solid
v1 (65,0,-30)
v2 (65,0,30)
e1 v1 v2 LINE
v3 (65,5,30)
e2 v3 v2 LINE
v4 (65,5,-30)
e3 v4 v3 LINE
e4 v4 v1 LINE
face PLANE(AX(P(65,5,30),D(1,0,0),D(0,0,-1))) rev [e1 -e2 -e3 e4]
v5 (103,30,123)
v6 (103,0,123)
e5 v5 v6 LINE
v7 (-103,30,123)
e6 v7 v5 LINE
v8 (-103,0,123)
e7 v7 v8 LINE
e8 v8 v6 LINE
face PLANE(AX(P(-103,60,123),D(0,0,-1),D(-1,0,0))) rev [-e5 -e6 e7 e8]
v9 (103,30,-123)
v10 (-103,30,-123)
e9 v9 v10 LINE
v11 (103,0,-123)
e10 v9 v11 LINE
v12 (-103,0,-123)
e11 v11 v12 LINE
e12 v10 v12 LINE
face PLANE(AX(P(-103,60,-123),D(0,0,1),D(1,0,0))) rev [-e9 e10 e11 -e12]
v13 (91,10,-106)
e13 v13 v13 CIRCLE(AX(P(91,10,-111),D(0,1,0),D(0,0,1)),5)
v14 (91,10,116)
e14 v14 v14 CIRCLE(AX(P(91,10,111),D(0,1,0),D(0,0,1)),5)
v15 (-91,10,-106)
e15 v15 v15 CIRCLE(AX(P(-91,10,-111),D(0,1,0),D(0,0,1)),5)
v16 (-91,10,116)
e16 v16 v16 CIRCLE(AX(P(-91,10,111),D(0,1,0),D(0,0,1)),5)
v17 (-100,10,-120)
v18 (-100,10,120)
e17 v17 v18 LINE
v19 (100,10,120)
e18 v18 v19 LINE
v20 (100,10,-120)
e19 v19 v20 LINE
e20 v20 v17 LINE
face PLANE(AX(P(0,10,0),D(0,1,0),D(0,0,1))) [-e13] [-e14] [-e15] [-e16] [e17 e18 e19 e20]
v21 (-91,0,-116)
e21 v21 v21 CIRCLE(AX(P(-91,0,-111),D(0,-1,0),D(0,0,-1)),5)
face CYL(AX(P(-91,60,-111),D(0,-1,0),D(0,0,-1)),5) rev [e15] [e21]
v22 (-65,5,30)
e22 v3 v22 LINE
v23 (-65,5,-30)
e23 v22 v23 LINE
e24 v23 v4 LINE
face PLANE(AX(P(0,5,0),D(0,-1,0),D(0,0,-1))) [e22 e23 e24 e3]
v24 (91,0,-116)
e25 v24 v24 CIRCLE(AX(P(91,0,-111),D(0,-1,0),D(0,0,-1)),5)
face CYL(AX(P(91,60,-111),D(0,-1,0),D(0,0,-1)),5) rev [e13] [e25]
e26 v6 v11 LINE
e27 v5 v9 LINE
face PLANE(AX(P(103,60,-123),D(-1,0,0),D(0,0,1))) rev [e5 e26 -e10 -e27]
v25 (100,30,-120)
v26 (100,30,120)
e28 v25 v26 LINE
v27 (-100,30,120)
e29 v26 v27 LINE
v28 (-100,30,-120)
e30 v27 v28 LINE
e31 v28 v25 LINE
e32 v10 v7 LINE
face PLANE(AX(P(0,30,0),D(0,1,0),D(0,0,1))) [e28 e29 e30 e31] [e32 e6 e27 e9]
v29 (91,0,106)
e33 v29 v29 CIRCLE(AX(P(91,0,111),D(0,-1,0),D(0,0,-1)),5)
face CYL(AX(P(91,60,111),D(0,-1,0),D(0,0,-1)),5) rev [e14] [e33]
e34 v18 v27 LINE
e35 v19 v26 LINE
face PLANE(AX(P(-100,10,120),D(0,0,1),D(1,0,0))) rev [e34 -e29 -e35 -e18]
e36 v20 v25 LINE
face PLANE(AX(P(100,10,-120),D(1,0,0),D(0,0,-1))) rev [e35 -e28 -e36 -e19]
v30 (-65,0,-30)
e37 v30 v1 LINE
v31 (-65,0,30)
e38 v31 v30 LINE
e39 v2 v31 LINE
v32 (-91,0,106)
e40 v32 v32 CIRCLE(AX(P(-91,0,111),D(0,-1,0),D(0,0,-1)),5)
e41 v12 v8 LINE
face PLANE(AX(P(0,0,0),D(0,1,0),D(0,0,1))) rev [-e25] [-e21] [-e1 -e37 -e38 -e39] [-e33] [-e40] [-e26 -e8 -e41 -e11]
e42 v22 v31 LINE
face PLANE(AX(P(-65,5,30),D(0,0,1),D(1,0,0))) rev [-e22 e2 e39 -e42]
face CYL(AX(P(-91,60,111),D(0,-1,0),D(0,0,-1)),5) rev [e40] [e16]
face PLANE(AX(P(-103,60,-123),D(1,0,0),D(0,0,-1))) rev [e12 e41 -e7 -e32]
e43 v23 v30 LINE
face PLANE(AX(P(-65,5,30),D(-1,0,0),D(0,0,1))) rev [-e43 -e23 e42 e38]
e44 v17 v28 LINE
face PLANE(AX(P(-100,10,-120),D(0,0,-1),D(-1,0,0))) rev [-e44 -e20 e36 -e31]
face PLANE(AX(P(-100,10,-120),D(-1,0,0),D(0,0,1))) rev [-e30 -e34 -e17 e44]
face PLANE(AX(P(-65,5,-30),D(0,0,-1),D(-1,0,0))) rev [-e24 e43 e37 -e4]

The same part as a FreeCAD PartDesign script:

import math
import FreeCAD as App
import Part
import Sketcher
from FreeCAD import Vector
Q = App.Units.Quantity

doc = App.newDocument("Part")
params = doc.addObject("Spreadsheet::Sheet", "Params")
for row, (alias, value) in enumerate([
    ("sketch1_width", "206 mm"),
    ("sketch1_height", "246 mm"),
    ("pad1_length", "60 mm"),
    ("sketch2_width", "200 mm"),
    ("sketch2_height", "240 mm"),
    ("pocket1_length", "50 mm"),
    ("sketch3_radius", "5 mm"),
    ("sketch4_width", "206 mm"),
    ("sketch4_height", "246 mm"),
    ("pocket3_length", "30 mm"),
    ("sketch5_width", "130 mm"),
    ("sketch5_height", "60 mm"),
    ("pocket4_length", "5 mm"),
], start=1):
    params.set(f"A{row}", alias)
    params.set(f"B{row}", "=" + value)
    params.setAlias(f"B{row}", alias)

body = doc.addObject("PartDesign::Body", "Body")

sketch1 = body.newObject("Sketcher::SketchObject", "Sketch")
sketch1.AttachmentSupport = (doc.getObject("XZ_Plane"), [""])
sketch1.MapMode = "FlatFace"
sketch1.addGeometry([
    Part.LineSegment(Vector(-103, -123, 0), Vector(-103, 123, 0)),
    Part.LineSegment(Vector(-103, 123, 0), Vector(103, 123, 0)),
    Part.LineSegment(Vector(103, 123, 0), Vector(103, -123, 0)),
    Part.LineSegment(Vector(103, -123, 0), Vector(-103, -123, 0)),
], False)
sketch1.addConstraint([
    Sketcher.Constraint("Coincident", 0, 2, 1, 1),
    Sketcher.Constraint("Coincident", 1, 2, 2, 1),
    Sketcher.Constraint("Coincident", 2, 2, 3, 1),
    Sketcher.Constraint("Coincident", 3, 2, 0, 1),
    Sketcher.Constraint("Vertical", 0),
    Sketcher.Constraint("Horizontal", 1),
    Sketcher.Constraint("Vertical", 2),
    Sketcher.Constraint("Horizontal", 3),
    Sketcher.Constraint("Symmetric", 0, 2, 2, 2, -1, 1),
    Sketcher.Constraint("DistanceX", 1, 1, 1, 2, Q("206 mm")),
    Sketcher.Constraint("DistanceY", 0, 1, 0, 2, Q("246 mm")),
])
sketch1.setExpression("Constraints[9]", "Params.sketch1_width")
sketch1.setExpression("Constraints[10]", "Params.sketch1_height")
pad1 = body.newObject("PartDesign::Pad", "Pad")
pad1.Profile = sketch1
pad1.setExpression("Length", "Params.pad1_length")
pad1.Reversed = True

sketch2 = body.newObject("Sketcher::SketchObject", "Sketch001")
sketch2.AttachmentSupport = (doc.getObject("XZ_Plane"), [""])
sketch2.MapMode = "FlatFace"
sketch2.AttachmentOffset = App.Placement(Vector(0, 0, -60), App.Rotation())
sketch2.addGeometry([
    Part.LineSegment(Vector(-100, -120, 0), Vector(-100, 120, 0)),
    Part.LineSegment(Vector(-100, 120, 0), Vector(100, 120, 0)),
    Part.LineSegment(Vector(100, 120, 0), Vector(100, -120, 0)),
    Part.LineSegment(Vector(100, -120, 0), Vector(-100, -120, 0)),
], False)
sketch2.addConstraint([
    Sketcher.Constraint("Coincident", 0, 2, 1, 1),
    Sketcher.Constraint("Coincident", 1, 2, 2, 1),
    Sketcher.Constraint("Coincident", 2, 2, 3, 1),
    Sketcher.Constraint("Coincident", 3, 2, 0, 1),
    Sketcher.Constraint("Vertical", 0),
    Sketcher.Constraint("Horizontal", 1),
    Sketcher.Constraint("Vertical", 2),
    Sketcher.Constraint("Horizontal", 3),
    Sketcher.Constraint("Symmetric", 0, 2, 2, 2, -1, 1),
    Sketcher.Constraint("DistanceX", 1, 1, 1, 2, Q("200 mm")),
    Sketcher.Constraint("DistanceY", 0, 1, 0, 2, Q("240 mm")),
])
sketch2.setExpression("Constraints[9]", "Params.sketch2_width")
sketch2.setExpression("Constraints[10]", "Params.sketch2_height")
pocket1 = body.newObject("PartDesign::Pocket", "Pocket")
pocket1.Profile = sketch2
pocket1.setExpression("Length", "Params.pocket1_length")
pocket1.Reversed = True

sketch3 = body.newObject("Sketcher::SketchObject", "Sketch002")
sketch3.AttachmentSupport = (doc.getObject("XZ_Plane"), [""])
sketch3.MapMode = "FlatFace"
sketch3.addGeometry([
    Part.ArcOfCircle(Part.Circle(Vector(-91, 111, 0), Vector(0, 0, 1), 5), math.radians(0), math.radians(270)),
    Part.ArcOfCircle(Part.Circle(Vector(-91, 111, 0), Vector(0, 0, 1), 5), math.radians(-90), math.radians(0)),
    Part.ArcOfCircle(Part.Circle(Vector(91, 111, 0), Vector(0, 0, 1), 5), math.radians(0), math.radians(180)),
    Part.ArcOfCircle(Part.Circle(Vector(91, 111, 0), Vector(0, 0, 1), 5), math.radians(180), math.radians(270)),
    Part.ArcOfCircle(Part.Circle(Vector(91, 111, 0), Vector(0, 0, 1), 5), math.radians(-90), math.radians(0)),
    Part.ArcOfCircle(Part.Circle(Vector(91, -111, 0), Vector(0, 0, 1), 5), math.radians(0), math.radians(90)),
    Part.ArcOfCircle(Part.Circle(Vector(91, -111, 0), Vector(0, 0, 1), 5), math.radians(90), math.radians(180)),
    Part.ArcOfCircle(Part.Circle(Vector(91, -111, 0), Vector(0, 0, 1), 5), math.radians(180), math.radians(360)),
    Part.ArcOfCircle(Part.Circle(Vector(-91, -111, 0), Vector(0, 0, 1), 5), math.radians(0), math.radians(90)),
    Part.ArcOfCircle(Part.Circle(Vector(-91, -111, 0), Vector(0, 0, 1), 5), math.radians(90), math.radians(360)),
], False)
sketch3.addConstraint([
    Sketcher.Constraint("Tangent", 0, 1, 1, 2),
    Sketcher.Constraint("Coincident", 1, 1, 0, 2),
    Sketcher.Constraint("Tangent", 2, 2, 3, 1),
    Sketcher.Constraint("Tangent", 3, 2, 4, 1),
    Sketcher.Constraint("Tangent", 4, 2, 2, 1),
    Sketcher.Constraint("Tangent", 5, 2, 6, 1),
    Sketcher.Constraint("Tangent", 6, 2, 7, 1),
    Sketcher.Constraint("Tangent", 7, 2, 5, 1),
    Sketcher.Constraint("Tangent", 8, 1, 9, 2),
    Sketcher.Constraint("Coincident", 9, 1, 8, 2),
    Sketcher.Constraint("Equal", 1, 2),
    Sketcher.Constraint("Equal", 4, 5),
    Sketcher.Constraint("Equal", 7, 8),
    Sketcher.Constraint("Symmetric", 0, 3, 5, 3, -1, 1),
    Sketcher.Constraint("Symmetric", 2, 3, 8, 3, -1, 1),
    Sketcher.Constraint("Symmetric", 0, 3, 2, 3, -2),
    Sketcher.Constraint("Horizontal", 4, 3, 0, 1),
    Sketcher.Constraint("Horizontal", 0, 1, 2, 2),
    Sketcher.Constraint("Horizontal", 2, 2, 4, 2),
    Sketcher.Constraint("Horizontal", 9, 3, 6, 2),
    Sketcher.Constraint("Horizontal", 6, 2, 7, 2),
    Sketcher.Constraint("Horizontal", 7, 2, 8, 1),
    Sketcher.Constraint("Vertical", 9, 3, 1, 1),
    Sketcher.Constraint("Vertical", 7, 3, 3, 2),
    Sketcher.Constraint("Vertical", 3, 2, 5, 2),
    Sketcher.Constraint("Vertical", 1, 1, 9, 1),
    Sketcher.Constraint("Radius", 0, Q("5 mm")),
    Sketcher.Constraint("DistanceX", 0, 3, -1, 1, Q("91 mm")),
    Sketcher.Constraint("DistanceY", -1, 1, 0, 3, Q("111 mm")),
])
sketch3.setExpression("Constraints[26]", "Params.sketch3_radius")
pocket2 = body.newObject("PartDesign::Pocket", "Pocket001")
pocket2.Profile = sketch3
pocket2.Type = "ThroughAll"

sketch4 = body.newObject("Sketcher::SketchObject", "Sketch003")
sketch4.AttachmentSupport = (doc.getObject("XZ_Plane"), [""])
sketch4.MapMode = "FlatFace"
sketch4.AttachmentOffset = App.Placement(Vector(0, 0, -60), App.Rotation())
sketch4.addGeometry([
    Part.LineSegment(Vector(-103, -123, 0), Vector(-103, 123, 0)),
    Part.LineSegment(Vector(-103, 123, 0), Vector(103, 123, 0)),
    Part.LineSegment(Vector(103, 123, 0), Vector(103, -123, 0)),
    Part.LineSegment(Vector(103, -123, 0), Vector(-103, -123, 0)),
], False)
sketch4.addConstraint([
    Sketcher.Constraint("Coincident", 0, 2, 1, 1),
    Sketcher.Constraint("Coincident", 1, 2, 2, 1),
    Sketcher.Constraint("Coincident", 2, 2, 3, 1),
    Sketcher.Constraint("Coincident", 3, 2, 0, 1),
    Sketcher.Constraint("Vertical", 0),
    Sketcher.Constraint("Horizontal", 1),
    Sketcher.Constraint("Vertical", 2),
    Sketcher.Constraint("Horizontal", 3),
    Sketcher.Constraint("Symmetric", 0, 2, 2, 2, -1, 1),
    Sketcher.Constraint("DistanceX", 1, 1, 1, 2, Q("206 mm")),
    Sketcher.Constraint("DistanceY", 0, 1, 0, 2, Q("246 mm")),
])
sketch4.setExpression("Constraints[9]", "Params.sketch4_width")
sketch4.setExpression("Constraints[10]", "Params.sketch4_height")
pocket3 = body.newObject("PartDesign::Pocket", "Pocket002")
pocket3.Profile = sketch4
pocket3.setExpression("Length", "Params.pocket3_length")
pocket3.Reversed = True

sketch5 = body.newObject("Sketcher::SketchObject", "Sketch004")
sketch5.AttachmentSupport = (doc.getObject("XZ_Plane"), [""])
sketch5.MapMode = "FlatFace"
sketch5.addGeometry([
    Part.LineSegment(Vector(-65, 30, 0), Vector(-65, -30, 0)),
    Part.LineSegment(Vector(-65, -30, 0), Vector(65, -30, 0)),
    Part.LineSegment(Vector(65, -30, 0), Vector(65, 30, 0)),
    Part.LineSegment(Vector(65, 30, 0), Vector(-65, 30, 0)),
], False)
sketch5.addConstraint([
    Sketcher.Constraint("Coincident", 0, 2, 1, 1),
    Sketcher.Constraint("Coincident", 1, 2, 2, 1),
    Sketcher.Constraint("Coincident", 2, 2, 3, 1),
    Sketcher.Constraint("Coincident", 3, 2, 0, 1),
    Sketcher.Constraint("Vertical", 0),
    Sketcher.Constraint("Horizontal", 1),
    Sketcher.Constraint("Vertical", 2),
    Sketcher.Constraint("Horizontal", 3),
    Sketcher.Constraint("Symmetric", 0, 2, 2, 2, -1, 1),
    Sketcher.Constraint("DistanceX", 1, 1, 1, 2, Q("130 mm")),
    Sketcher.Constraint("DistanceY", 0, 2, 0, 1, Q("60 mm")),
])
sketch5.setExpression("Constraints[9]", "Params.sketch5_width")
sketch5.setExpression("Constraints[10]", "Params.sketch5_height")
pocket4 = body.newObject("PartDesign::Pocket", "Pocket003")
pocket4.Profile = sketch5
pocket4.setExpression("Length", "Params.pocket4_length")

doc.recompute()
